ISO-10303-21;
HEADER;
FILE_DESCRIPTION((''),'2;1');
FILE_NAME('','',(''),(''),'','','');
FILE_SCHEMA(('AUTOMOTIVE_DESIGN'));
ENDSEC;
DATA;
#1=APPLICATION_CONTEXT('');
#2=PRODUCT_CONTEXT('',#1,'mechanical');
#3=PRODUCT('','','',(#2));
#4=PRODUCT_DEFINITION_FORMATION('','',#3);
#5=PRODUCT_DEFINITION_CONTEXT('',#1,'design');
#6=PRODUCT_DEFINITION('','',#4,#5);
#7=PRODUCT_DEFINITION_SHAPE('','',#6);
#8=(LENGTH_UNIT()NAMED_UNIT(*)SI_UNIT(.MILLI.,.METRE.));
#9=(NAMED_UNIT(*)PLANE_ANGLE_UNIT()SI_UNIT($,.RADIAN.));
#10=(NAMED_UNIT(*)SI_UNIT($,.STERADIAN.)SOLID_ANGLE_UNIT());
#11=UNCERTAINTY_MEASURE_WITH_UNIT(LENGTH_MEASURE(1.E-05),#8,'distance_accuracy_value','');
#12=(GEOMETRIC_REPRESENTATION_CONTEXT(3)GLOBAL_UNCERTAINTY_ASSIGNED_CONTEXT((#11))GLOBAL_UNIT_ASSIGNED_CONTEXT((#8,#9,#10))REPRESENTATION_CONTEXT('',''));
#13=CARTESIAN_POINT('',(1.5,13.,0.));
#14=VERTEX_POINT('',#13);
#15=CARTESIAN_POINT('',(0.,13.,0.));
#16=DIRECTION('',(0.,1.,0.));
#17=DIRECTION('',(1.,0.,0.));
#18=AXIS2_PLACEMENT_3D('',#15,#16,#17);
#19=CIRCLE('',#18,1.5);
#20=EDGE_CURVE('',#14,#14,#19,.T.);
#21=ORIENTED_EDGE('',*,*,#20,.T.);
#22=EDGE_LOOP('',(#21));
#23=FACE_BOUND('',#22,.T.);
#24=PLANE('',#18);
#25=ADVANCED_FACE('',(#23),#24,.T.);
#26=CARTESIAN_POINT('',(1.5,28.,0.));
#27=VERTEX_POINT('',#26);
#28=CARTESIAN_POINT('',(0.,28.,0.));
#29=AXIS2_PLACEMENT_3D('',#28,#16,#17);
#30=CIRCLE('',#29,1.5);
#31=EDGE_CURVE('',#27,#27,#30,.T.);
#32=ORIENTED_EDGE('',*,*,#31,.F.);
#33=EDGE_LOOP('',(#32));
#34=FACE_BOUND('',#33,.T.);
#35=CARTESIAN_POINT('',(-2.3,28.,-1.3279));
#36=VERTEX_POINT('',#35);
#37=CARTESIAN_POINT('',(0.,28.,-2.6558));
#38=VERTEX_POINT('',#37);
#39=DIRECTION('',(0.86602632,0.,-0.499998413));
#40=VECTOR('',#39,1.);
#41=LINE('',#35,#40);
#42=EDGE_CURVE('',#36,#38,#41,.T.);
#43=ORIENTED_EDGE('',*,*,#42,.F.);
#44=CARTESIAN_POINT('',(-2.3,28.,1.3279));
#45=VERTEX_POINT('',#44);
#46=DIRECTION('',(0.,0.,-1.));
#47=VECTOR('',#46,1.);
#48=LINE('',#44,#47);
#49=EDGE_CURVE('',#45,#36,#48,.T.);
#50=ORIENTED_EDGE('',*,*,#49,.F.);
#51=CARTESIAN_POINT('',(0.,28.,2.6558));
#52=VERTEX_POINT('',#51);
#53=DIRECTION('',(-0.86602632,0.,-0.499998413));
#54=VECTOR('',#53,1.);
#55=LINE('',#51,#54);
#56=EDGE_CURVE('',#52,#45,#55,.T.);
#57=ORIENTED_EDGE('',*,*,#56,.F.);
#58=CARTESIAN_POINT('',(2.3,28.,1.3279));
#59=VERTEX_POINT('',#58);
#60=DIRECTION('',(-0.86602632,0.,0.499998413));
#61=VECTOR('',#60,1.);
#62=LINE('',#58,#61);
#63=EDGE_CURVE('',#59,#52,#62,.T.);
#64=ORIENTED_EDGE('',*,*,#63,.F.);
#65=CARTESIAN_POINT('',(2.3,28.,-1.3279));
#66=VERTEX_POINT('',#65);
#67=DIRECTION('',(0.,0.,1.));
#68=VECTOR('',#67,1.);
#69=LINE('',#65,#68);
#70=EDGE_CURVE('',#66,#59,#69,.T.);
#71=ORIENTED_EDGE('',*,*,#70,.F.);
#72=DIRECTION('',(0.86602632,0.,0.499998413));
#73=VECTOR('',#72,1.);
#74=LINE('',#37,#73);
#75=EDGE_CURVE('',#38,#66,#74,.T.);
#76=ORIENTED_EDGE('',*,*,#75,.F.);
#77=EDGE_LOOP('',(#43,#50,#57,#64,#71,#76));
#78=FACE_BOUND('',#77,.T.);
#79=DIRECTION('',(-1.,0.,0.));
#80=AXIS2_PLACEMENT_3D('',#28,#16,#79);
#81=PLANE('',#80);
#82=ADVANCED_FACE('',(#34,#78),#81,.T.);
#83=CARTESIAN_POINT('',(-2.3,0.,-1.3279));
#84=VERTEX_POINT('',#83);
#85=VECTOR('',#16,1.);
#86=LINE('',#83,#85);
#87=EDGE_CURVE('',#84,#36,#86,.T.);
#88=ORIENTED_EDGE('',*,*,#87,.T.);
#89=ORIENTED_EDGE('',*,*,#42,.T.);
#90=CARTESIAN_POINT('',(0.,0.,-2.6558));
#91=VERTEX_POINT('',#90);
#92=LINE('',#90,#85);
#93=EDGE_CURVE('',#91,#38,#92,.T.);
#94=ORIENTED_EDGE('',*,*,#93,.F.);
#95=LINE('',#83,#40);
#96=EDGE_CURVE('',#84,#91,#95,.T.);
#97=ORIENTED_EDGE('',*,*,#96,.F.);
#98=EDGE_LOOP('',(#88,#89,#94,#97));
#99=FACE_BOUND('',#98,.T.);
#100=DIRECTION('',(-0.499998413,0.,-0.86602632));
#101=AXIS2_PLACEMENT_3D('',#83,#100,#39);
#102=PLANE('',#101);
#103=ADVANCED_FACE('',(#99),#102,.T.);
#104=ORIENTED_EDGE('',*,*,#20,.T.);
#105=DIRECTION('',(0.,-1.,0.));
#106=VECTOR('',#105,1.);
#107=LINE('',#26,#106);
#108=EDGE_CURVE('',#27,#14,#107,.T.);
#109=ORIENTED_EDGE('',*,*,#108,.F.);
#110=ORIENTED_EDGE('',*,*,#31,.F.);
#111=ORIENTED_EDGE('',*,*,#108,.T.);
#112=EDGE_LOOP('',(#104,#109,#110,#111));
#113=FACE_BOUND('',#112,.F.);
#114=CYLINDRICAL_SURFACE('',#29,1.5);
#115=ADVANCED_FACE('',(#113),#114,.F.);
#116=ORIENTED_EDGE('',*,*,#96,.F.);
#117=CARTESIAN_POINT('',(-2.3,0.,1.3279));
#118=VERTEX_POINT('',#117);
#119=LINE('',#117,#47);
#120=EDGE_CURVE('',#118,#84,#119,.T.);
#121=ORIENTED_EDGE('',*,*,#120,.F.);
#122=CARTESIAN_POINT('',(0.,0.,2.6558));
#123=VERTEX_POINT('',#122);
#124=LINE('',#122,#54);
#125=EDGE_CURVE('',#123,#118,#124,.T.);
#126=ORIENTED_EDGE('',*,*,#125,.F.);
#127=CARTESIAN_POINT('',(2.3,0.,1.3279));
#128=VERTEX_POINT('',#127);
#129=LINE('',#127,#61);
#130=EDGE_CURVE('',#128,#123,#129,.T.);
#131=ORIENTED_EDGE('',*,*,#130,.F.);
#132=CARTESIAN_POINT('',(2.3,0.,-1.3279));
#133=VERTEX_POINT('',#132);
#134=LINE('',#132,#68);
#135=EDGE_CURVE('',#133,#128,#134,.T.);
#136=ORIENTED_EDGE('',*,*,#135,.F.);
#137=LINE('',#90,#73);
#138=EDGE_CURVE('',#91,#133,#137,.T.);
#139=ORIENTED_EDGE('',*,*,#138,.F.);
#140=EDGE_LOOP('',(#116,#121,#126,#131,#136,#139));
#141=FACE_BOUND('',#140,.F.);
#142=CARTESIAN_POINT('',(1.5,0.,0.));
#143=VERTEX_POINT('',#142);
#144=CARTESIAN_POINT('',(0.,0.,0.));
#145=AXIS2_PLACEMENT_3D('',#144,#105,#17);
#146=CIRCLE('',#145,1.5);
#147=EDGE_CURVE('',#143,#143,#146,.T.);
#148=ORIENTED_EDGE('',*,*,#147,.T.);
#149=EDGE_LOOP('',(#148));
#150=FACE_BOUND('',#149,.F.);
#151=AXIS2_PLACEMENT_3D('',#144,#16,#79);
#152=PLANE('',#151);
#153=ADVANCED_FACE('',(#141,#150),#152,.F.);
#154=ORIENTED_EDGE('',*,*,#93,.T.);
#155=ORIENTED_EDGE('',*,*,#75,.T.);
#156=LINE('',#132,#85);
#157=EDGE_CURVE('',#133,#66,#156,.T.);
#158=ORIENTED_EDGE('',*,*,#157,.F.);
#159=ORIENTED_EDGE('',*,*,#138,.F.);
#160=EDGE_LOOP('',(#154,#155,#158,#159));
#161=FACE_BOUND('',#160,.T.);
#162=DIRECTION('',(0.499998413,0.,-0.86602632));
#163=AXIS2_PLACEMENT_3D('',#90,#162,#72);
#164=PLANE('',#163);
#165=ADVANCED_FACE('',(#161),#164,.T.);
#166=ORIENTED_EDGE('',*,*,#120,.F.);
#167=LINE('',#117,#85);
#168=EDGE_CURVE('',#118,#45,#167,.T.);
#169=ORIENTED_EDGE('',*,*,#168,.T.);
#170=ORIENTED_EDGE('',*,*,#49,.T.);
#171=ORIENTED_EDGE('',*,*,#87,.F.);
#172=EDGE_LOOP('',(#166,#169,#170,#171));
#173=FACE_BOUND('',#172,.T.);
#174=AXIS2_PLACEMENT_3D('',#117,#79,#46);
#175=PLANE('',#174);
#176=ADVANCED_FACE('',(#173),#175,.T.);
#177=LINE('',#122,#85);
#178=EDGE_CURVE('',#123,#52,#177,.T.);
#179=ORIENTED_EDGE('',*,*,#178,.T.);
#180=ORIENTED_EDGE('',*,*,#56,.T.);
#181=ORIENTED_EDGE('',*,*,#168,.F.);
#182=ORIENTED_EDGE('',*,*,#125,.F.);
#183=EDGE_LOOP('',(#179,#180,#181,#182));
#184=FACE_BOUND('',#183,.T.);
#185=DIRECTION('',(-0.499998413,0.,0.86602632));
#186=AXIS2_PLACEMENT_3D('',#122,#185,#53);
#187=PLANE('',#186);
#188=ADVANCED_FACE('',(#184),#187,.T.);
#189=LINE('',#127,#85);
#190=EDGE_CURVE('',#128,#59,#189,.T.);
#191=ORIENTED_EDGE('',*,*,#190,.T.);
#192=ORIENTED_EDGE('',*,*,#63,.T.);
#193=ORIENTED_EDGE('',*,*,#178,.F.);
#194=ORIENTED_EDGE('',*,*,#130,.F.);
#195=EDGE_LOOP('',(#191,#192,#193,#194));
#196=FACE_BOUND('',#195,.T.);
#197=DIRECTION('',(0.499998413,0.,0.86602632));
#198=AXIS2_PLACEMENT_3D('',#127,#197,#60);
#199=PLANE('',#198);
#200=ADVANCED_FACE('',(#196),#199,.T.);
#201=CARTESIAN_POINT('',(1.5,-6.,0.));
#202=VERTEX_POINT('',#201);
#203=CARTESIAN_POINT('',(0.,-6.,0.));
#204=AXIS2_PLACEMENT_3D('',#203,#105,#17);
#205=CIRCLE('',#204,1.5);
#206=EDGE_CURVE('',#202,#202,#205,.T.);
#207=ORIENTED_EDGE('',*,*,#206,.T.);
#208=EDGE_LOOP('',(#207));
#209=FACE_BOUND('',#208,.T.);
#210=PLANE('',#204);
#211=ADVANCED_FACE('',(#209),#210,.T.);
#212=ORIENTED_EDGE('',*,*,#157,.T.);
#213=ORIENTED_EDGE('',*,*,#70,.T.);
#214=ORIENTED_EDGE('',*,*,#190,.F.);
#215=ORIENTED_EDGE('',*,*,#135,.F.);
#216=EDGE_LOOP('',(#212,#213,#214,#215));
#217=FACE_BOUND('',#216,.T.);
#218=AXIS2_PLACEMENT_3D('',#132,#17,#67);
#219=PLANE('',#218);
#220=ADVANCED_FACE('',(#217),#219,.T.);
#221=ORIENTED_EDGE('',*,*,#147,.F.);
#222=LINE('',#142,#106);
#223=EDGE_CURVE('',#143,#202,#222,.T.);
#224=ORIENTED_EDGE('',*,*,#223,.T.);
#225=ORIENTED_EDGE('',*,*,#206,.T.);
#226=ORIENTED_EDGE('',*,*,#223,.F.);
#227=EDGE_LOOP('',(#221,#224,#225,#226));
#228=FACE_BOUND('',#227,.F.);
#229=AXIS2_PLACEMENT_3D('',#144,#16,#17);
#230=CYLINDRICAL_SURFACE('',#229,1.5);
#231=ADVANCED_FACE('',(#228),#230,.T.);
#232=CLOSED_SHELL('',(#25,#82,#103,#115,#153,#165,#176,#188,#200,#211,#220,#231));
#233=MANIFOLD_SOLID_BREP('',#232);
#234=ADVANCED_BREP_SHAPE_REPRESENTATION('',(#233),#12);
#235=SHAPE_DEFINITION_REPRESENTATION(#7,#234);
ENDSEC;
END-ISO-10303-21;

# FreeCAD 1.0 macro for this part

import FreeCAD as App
import Part
import Sketcher
Q = App.Units.Quantity


def add_polygon(sketch, points):
    """Adds a closed chain of lines whose ends are joined by coincident constraints."""
    first, n = sketch.GeometryCount, len(points)
    for a, b in zip(points, points[1:] + points[:1]):
        sketch.addGeometry(Part.LineSegment(App.Vector(*a, 0), App.Vector(*b, 0)), False)
    for i in range(n):
        sketch.addConstraint(Sketcher.Constraint("Coincident", first + i, 2, first + (i + 1) % n, 1))

doc = App.newDocument("Part")
params = doc.addObject("Spreadsheet::Sheet", "Params")
for row, (alias, value) in enumerate([
    ("pad1_length", "28 mm"),
    ("sketch2_diameter", "3 mm"),
    ("pocket1_length", "15 mm"),
    ("sketch3_diameter", "3 mm"),
    ("pad2_length", "6 mm"),
], start=1):
    params.set(f"A{row}", alias)
    params.set(f"B{row}", "=" + value)
    params.setAlias(f"B{row}", alias)

body = doc.addObject("PartDesign::Body", "Body")

# Sketch on XZ plane
sketch1 = doc.addObject("Sketcher::SketchObject", "Sketch")
body.addObject(sketch1)
sketch1.AttachmentSupport = (doc.XZ_Plane, [""])
sketch1.MapMode = "FlatFace"
add_polygon(sketch1, [(2.3, -1.3), (0, -2.7), (-2.3, -1.3), (-2.3, 1.3), (0, 2.7), (2.3, 1.3)])  # lines 0-5
sketch1.addConstraint([
    Sketcher.Constraint("Vertical", 2),
    Sketcher.Constraint("Vertical", 5),
    Sketcher.Constraint("Symmetric", 0, 2, 3, 2, -1, 1),
    Sketcher.Constraint("Symmetric", 1, 2, 4, 2, -1, 1),
    Sketcher.Constraint("PointOnObject", 0, 2, -2),
    Sketcher.Constraint("Parallel", 0, 3),
    Sketcher.Constraint("Horizontal", 2, 2, 4, 2),
    Sketcher.Constraint("DistanceX", 2, 2, 4, 2, Q("4.6 mm")),
    Sketcher.Constraint("Angle", 0, Q("-150 deg")),
    Sketcher.Constraint("DistanceY", 2, 1, 2, 2, Q("2.6558 mm")),
])
pad1 = doc.addObject("PartDesign::Pad", "Pad")
body.addObject(pad1)
pad1.Profile = sketch1
pad1.setExpression("Length", "Params.pad1_length")
pad1.Reversed = True

# Sketch on XZ plane
sketch2 = doc.addObject("Sketcher::SketchObject", "Sketch001")
body.addObject(sketch2)
sketch2.AttachmentSupport = (doc.XZ_Plane, [""])
sketch2.MapMode = "FlatFace"
sketch2.AttachmentOffset = App.Placement(App.Vector(0, 0, -28), App.Rotation())
sketch2.addGeometry(Part.Circle(App.Vector(0, 0, 0), App.Vector(0, 0, 1), 1.5), False)
sketch2.addConstraint([
    Sketcher.Constraint("Coincident", 0, 3, -1, 1),
    Sketcher.Constraint("Diameter", 0, Q("3 mm")),
])
sketch2.setExpression("Constraints[1]", "Params.sketch2_diameter")
pocket1 = doc.addObject("PartDesign::Pocket", "Pocket")
body.addObject(pocket1)
pocket1.Profile = sketch2
pocket1.setExpression("Length", "Params.pocket1_length")
pocket1.Reversed = True

# Sketch on XZ plane
sketch3 = doc.addObject("Sketcher::SketchObject", "Sketch002")
body.addObject(sketch3)
sketch3.AttachmentSupport = (doc.XZ_Plane, [""])
sketch3.MapMode = "FlatFace"
sketch3.addGeometry(Part.Circle(App.Vector(0, 0, 0), App.Vector(0, 0, 1), 1.5), False)
sketch3.addConstraint([
    Sketcher.Constraint("Coincident", 0, 3, -1, 1),
    Sketcher.Constraint("Diameter", 0, Q("3 mm")),
])
sketch3.setExpression("Constraints[1]", "Params.sketch3_diameter")
pad2 = doc.addObject("PartDesign::Pad", "Pad001")
body.addObject(pad2)
pad2.Profile = sketch3
pad2.setExpression("Length", "Params.pad2_length")

doc.recompute()
